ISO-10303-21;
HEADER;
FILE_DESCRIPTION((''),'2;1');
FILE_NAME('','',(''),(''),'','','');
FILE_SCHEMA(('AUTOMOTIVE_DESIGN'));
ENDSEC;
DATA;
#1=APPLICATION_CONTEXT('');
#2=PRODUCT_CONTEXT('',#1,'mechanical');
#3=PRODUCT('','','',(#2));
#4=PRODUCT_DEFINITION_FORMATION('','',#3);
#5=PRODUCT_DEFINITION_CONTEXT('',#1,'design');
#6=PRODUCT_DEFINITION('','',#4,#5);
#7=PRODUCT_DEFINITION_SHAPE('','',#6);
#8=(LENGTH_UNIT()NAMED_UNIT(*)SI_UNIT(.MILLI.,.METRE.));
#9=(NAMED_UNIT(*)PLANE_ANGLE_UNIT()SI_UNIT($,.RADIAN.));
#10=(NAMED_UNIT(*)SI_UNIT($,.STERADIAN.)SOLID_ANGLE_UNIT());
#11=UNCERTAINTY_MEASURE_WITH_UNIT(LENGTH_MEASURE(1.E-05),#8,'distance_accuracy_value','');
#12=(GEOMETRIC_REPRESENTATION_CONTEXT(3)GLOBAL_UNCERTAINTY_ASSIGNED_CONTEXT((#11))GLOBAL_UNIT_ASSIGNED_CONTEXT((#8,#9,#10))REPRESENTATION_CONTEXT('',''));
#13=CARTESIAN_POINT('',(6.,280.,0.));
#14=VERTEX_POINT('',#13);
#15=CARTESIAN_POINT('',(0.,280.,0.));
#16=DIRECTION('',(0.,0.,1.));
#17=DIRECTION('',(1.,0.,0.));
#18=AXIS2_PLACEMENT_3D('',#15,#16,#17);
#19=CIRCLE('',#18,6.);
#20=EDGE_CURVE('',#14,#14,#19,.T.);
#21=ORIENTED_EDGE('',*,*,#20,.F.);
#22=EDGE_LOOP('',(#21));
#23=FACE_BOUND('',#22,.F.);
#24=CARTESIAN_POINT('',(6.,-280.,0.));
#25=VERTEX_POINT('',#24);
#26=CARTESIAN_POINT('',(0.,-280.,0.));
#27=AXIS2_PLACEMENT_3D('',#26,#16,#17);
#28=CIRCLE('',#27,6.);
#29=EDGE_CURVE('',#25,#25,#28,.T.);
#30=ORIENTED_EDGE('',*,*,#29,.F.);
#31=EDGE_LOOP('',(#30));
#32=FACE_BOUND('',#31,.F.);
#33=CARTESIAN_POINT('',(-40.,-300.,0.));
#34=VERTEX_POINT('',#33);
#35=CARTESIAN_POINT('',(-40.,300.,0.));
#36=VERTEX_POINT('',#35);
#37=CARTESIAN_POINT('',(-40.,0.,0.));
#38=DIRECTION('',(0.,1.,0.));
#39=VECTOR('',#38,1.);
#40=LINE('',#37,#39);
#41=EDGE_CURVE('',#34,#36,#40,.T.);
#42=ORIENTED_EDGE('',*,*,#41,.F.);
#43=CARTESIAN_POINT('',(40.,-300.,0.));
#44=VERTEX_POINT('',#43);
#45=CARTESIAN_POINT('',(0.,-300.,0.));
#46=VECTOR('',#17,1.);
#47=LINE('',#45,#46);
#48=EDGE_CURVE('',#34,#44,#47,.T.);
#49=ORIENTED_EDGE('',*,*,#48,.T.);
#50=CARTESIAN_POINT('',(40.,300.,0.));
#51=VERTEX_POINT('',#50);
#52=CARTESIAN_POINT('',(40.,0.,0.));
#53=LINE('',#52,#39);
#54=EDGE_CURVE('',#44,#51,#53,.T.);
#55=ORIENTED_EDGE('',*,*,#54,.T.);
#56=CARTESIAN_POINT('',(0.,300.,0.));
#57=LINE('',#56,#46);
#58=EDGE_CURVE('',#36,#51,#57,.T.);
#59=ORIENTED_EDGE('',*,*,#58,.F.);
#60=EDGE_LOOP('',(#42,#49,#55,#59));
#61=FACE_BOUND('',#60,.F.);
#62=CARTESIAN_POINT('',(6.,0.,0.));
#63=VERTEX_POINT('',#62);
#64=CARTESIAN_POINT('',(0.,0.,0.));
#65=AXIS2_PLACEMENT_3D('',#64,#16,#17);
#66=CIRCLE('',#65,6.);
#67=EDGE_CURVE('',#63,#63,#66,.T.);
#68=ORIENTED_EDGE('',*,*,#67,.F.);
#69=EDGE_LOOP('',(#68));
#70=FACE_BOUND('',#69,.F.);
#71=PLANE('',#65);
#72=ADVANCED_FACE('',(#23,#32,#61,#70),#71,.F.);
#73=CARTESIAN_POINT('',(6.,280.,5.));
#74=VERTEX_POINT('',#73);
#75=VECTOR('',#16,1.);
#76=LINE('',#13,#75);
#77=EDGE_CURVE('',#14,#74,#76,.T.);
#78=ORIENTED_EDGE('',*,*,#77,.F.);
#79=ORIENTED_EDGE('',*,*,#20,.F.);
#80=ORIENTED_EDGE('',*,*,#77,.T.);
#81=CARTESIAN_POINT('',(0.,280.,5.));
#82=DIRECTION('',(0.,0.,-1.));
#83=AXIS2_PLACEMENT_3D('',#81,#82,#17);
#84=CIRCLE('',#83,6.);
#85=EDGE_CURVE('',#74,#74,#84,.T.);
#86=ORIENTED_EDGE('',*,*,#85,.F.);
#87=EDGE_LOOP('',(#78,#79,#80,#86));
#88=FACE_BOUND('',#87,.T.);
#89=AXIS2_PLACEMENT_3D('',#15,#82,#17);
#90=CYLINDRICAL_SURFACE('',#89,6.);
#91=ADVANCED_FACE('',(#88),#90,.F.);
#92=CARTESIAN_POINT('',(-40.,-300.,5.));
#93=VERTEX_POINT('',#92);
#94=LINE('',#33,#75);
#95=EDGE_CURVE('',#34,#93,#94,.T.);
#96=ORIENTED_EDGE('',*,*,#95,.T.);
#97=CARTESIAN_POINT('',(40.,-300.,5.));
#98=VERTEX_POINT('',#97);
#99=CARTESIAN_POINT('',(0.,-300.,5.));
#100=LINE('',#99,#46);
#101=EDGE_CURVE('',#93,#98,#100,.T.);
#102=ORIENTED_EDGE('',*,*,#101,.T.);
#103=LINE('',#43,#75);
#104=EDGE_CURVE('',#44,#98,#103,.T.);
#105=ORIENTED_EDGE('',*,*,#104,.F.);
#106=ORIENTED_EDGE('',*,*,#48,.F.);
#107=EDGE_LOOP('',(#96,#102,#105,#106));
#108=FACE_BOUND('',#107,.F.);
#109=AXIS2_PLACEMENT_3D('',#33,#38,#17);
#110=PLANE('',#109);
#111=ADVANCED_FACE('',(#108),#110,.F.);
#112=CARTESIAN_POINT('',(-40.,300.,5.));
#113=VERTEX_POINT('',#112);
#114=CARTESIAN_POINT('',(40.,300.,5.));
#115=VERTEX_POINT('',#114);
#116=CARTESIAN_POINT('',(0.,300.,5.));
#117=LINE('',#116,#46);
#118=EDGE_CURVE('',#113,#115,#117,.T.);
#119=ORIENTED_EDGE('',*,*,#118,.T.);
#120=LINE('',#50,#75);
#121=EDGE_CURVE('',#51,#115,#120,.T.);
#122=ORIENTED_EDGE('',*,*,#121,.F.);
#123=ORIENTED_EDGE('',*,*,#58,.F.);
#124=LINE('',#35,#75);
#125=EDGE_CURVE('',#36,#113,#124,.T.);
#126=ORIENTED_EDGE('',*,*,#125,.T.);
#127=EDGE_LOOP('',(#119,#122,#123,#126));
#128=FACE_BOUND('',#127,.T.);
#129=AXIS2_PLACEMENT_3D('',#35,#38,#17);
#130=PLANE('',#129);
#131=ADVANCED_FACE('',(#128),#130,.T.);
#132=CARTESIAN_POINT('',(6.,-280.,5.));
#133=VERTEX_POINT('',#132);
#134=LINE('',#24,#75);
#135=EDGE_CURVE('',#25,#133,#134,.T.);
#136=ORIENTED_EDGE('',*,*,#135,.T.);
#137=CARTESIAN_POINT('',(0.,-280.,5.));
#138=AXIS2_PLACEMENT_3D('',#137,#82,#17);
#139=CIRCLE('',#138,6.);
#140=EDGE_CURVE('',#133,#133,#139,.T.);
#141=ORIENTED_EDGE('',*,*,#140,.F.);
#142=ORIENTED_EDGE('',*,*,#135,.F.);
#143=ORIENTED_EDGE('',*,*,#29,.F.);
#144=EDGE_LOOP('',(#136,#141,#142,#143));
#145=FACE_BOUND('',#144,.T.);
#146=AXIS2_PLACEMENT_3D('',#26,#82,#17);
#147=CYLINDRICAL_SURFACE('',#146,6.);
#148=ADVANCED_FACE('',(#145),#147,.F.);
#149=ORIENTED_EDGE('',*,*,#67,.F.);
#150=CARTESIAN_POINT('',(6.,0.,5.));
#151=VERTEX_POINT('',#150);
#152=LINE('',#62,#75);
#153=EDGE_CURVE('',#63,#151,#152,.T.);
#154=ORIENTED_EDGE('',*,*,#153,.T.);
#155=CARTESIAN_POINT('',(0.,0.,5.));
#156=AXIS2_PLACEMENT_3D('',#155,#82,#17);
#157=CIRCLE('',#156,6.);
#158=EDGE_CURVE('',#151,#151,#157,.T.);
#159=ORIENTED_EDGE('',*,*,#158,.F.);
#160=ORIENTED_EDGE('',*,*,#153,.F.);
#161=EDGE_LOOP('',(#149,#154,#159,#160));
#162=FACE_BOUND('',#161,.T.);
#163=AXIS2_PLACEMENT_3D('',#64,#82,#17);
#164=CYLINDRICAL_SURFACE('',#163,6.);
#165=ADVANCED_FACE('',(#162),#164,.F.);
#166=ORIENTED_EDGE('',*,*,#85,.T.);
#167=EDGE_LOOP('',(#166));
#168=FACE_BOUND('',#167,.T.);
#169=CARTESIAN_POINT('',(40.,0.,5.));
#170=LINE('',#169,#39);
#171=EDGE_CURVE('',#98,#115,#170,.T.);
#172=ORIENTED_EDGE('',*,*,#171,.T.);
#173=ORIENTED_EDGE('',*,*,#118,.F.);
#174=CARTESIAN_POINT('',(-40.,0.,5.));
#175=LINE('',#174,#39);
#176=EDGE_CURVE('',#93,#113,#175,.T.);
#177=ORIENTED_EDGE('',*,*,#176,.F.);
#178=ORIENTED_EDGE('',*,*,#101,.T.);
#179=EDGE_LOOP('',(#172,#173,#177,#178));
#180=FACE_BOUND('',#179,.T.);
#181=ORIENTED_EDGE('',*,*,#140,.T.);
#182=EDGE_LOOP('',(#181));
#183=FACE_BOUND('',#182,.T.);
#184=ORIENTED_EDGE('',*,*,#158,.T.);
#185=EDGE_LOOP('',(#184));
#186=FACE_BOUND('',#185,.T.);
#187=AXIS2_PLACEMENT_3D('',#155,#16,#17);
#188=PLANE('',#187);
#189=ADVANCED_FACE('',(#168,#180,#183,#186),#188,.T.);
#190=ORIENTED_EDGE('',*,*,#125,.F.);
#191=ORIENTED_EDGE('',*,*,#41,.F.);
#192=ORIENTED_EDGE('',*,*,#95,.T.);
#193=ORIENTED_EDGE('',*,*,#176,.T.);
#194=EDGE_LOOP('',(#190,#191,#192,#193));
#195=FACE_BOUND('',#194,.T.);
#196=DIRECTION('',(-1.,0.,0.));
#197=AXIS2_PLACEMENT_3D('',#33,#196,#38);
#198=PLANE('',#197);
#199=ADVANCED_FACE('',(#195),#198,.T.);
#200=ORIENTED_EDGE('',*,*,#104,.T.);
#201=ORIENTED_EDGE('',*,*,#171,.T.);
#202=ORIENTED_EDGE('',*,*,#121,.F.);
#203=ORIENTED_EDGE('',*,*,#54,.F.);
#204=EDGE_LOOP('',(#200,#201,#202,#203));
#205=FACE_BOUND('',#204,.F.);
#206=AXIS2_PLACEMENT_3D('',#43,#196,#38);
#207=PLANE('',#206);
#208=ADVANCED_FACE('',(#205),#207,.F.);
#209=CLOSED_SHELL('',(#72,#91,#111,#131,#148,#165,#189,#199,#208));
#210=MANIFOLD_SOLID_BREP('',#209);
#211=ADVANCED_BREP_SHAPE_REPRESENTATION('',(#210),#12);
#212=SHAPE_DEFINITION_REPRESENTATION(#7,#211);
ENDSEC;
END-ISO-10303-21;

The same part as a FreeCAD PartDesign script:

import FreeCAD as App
import Part
import Sketcher
from FreeCAD import Vector


def add_polygon(sketch, points):
    """Adds a closed chain of lines whose ends are joined by coincident constraints."""
    first, n = sketch.GeometryCount, len(points)
    for a, b in zip(points, points[1:] + points[:1]):
        sketch.addGeometry(Part.LineSegment(App.Vector(*a, 0), App.Vector(*b, 0)), False)
    for i in range(n):
        sketch.addConstraint(Sketcher.Constraint("Coincident", first + i, 2, first + (i + 1) % n, 1))

doc = App.newDocument("Part")
body = doc.addObject("PartDesign::Body", "Body")

sketch1 = doc.addObject("Sketcher::SketchObject", "Sketch")
body.addObject(sketch1)
sketch1.AttachmentSupport = (doc.XY_Plane, [""])
sketch1.MapMode = "FlatFace"
add_polygon(sketch1, [(-40, 300), (-40, -300), (40, -300), (40, 300)])
sketch1.addConstraint([
    Sketcher.Constraint("Vertical", 0),
    Sketcher.Constraint("Horizontal", 1),
    Sketcher.Constraint("Vertical", 2),
    Sketcher.Constraint("Horizontal", 3),
    Sketcher.Constraint("Symmetric", 0, 2, 2, 2, -1, 1),
    Sketcher.Constraint("DistanceX", 1, 1, 1, 2, 80.0),
    Sketcher.Constraint("DistanceY", 0, 2, 0, 1, 600.0),
])
pad1 = doc.addObject("PartDesign::Pad", "Pad")
body.addObject(pad1)
pad1.Profile = sketch1
pad1.Length = 5

sketch2 = doc.addObject("Sketcher::SketchObject", "Sketch001")
body.addObject(sketch2)
sketch2.AttachmentSupport = (doc.XY_Plane, [""])
sketch2.MapMode = "FlatFace"
sketch2.addGeometry([
    Part.Circle(Vector(0, 280, 0), Vector(0, 0, 1), 6),
    Part.Circle(Vector(0, 0, 0), Vector(0, 0, 1), 6),
    Part.Circle(Vector(0, -280, 0), Vector(0, 0, 1), 6),
], False)
sketch2.addConstraint([
    Sketcher.Constraint("Coincident", 1, 3, -1, 1),
    Sketcher.Constraint("Equal", 0, 1),
    Sketcher.Constraint("Equal", 1, 2),
    Sketcher.Constraint("Symmetric", 0, 3, 2, 3, -1, 1),
    Sketcher.Constraint("PointOnObject", 0, 3, -2),
    Sketcher.Constraint("Diameter", 0, 12.0),
    Sketcher.Constraint("DistanceY", -1, 1, 0, 3, 280.0),
])
pocket1 = doc.addObject("PartDesign::Pocket", "Pocket")
body.addObject(pocket1)
pocket1.Profile = sketch2
pocket1.Length = 25
pocket1.Reversed = True

doc.recompute()
